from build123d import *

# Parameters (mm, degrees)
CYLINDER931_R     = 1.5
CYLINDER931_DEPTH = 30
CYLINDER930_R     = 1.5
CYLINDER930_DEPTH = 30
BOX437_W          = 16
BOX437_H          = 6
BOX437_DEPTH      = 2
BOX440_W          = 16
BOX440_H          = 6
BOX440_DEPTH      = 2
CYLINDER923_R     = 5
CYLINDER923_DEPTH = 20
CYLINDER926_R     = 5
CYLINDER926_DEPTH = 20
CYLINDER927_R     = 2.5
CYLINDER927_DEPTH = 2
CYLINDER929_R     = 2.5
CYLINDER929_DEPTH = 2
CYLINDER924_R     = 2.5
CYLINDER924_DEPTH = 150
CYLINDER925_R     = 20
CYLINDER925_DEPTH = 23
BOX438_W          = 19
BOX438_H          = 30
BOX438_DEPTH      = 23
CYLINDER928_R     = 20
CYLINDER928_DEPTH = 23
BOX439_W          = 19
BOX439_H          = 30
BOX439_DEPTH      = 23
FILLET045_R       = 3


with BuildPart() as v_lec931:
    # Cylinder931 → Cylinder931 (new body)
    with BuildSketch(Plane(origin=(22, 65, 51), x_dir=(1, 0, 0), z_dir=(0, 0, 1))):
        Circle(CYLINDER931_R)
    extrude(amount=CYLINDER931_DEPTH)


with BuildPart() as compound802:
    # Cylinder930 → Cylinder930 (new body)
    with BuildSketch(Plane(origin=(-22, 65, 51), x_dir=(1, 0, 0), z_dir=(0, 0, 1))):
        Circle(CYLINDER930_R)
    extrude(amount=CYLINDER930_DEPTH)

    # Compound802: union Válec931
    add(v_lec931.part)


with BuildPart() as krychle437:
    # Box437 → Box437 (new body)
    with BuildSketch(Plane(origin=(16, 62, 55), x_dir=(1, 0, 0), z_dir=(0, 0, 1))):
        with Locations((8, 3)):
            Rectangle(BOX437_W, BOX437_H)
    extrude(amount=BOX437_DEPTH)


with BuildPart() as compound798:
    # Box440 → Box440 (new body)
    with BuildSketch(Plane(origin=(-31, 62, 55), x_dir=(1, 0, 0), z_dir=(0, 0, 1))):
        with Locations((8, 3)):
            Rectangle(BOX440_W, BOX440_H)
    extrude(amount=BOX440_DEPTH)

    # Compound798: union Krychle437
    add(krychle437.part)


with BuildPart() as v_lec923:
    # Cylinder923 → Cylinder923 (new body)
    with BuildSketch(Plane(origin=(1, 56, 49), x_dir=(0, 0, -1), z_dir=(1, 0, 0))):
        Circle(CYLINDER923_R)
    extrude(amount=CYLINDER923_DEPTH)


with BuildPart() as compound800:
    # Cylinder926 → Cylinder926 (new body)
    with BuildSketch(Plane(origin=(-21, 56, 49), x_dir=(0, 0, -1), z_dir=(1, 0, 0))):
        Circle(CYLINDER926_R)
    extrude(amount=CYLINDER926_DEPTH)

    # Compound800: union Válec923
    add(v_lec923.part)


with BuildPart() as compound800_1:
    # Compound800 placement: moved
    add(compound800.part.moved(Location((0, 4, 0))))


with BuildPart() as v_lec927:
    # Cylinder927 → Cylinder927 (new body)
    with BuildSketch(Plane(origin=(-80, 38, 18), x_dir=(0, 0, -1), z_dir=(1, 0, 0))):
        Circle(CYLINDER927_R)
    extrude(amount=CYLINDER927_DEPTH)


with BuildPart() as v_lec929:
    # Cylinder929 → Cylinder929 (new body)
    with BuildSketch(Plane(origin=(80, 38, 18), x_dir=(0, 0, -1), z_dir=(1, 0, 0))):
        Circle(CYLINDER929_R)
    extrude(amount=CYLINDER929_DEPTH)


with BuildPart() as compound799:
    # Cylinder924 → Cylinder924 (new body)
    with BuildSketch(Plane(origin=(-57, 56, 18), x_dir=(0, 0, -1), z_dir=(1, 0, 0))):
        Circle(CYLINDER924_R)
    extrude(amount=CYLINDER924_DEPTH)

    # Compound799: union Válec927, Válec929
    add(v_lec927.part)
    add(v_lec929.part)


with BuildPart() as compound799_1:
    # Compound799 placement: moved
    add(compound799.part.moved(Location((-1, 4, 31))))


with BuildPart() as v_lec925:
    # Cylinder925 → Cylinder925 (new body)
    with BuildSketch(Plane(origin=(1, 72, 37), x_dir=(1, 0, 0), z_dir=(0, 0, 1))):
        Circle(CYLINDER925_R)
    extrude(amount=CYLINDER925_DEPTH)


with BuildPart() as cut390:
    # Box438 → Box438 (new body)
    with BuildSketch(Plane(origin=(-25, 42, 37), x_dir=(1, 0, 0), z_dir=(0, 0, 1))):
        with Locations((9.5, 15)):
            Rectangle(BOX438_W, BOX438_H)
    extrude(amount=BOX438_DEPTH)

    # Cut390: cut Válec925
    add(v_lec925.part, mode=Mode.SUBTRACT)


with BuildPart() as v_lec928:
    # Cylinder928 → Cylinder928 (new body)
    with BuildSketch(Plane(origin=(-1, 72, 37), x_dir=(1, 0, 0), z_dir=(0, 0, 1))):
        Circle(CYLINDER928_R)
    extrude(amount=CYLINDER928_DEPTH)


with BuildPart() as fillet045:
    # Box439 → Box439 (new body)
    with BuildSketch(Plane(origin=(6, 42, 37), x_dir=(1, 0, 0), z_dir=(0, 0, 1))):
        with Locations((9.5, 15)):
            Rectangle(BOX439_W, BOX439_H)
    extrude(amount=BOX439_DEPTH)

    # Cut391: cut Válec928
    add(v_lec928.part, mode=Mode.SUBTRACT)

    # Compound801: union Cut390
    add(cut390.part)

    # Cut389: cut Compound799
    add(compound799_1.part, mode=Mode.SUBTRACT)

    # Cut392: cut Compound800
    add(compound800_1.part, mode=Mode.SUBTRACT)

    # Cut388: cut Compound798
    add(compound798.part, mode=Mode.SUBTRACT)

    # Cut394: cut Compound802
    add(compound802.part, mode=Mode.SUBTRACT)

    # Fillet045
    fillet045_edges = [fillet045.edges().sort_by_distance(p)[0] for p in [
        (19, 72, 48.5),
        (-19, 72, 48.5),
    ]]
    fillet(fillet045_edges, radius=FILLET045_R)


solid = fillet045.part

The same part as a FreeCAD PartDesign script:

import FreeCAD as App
import Part
import Sketcher

V = App.Vector


def edges_at(feature, points):
    """Names of the edges that pass closest to the given points."""
    edges = feature.Shape.Edges
    near = lambda p: min(range(len(edges)), key=lambda i: edges[i].distToShape(Part.Vertex(*p))[0])
    return sorted({f"Edge{near(p) + 1}" for p in points})

doc = App.newDocument("Part")
body = doc.addObject("PartDesign::Body", "Body")

# Sketch on XY plane
sketch1 = body.newObject("Sketcher::SketchObject", "Sketch")
sketch1.AttachmentSupport = (doc.getObject("XY_Plane"), [""])
sketch1.MapMode = "FlatFace"
sketch1.AttachmentOffset = App.Placement(V(0, 0, 51), App.Rotation())
sketch1.addGeometry(Part.Circle(V(22, 65, 0), V(0, 0, 1), 1.5), False)
sketch1.addConstraint([
    Sketcher.Constraint("Diameter", 0, 3.0),
    Sketcher.Constraint("DistanceX", -1, 1, 0, 3, 22.0),
    Sketcher.Constraint("DistanceY", -1, 1, 0, 3, 65.0),
])
pad1 = body.newObject("PartDesign::Pad", "Pad")
pad1.Profile = sketch1
pad1.Length = 30
body2 = doc.addObject("PartDesign::Body", "Body001")
body2.AllowCompound = True

# Sketch on XY plane
sketch2 = body2.newObject("Sketcher::SketchObject", "Sketch001")
sketch2.AttachmentSupport = (doc.getObject("XY_Plane001"), [""])
sketch2.MapMode = "FlatFace"
sketch2.AttachmentOffset = App.Placement(V(0, 0, 51), App.Rotation())
sketch2.addGeometry(Part.Circle(V(-22, 65, 0), V(0, 0, 1), 1.5), False)
sketch2.addConstraint([
    Sketcher.Constraint("Diameter", 0, 3.0),
    Sketcher.Constraint("DistanceX", 0, 3, -1, 1, 22.0),
    Sketcher.Constraint("DistanceY", -1, 1, 0, 3, 65.0),
])
pad2 = body2.newObject("PartDesign::Pad", "Pad001")
pad2.Profile = sketch2
pad2.Length = 30
doc.recompute()

boolean = body2.newObject("PartDesign::Boolean", "Boolean")
boolean.Type = "Fuse"
boolean.addObjects([body])
body3 = doc.addObject("PartDesign::Body", "Body002")

# Sketch on XY plane
sketch3 = body3.newObject("Sketcher::SketchObject", "Sketch002")
sketch3.AttachmentSupport = (doc.getObject("XY_Plane002"), [""])
sketch3.MapMode = "FlatFace"
sketch3.AttachmentOffset = App.Placement(V(0, 0, 55), App.Rotation())
sketch3.addGeometry([
    Part.LineSegment(V(16, 68, 0), V(16, 62, 0)),
    Part.LineSegment(V(16, 62, 0), V(32, 62, 0)),
    Part.LineSegment(V(32, 62, 0), V(32, 68, 0)),
    Part.LineSegment(V(32, 68, 0), V(16, 68, 0)),
], False)
sketch3.addConstraint([
    Sketcher.Constraint("Coincident", 0, 2, 1, 1),
    Sketcher.Constraint("Coincident", 1, 2, 2, 1),
    Sketcher.Constraint("Coincident", 2, 2, 3, 1),
    Sketcher.Constraint("Coincident", 3, 2, 0, 1),
    Sketcher.Constraint("Vertical", 0),
    Sketcher.Constraint("Horizontal", 1),
    Sketcher.Constraint("Vertical", 2),
    Sketcher.Constraint("Horizontal", 3),
    Sketcher.Constraint("DistanceX", 1, 1, 1, 2, 16.0),
    Sketcher.Constraint("DistanceY", 0, 2, 0, 1, 6.0),
    Sketcher.Constraint("DistanceX", -1, 1, 0, 2, 16.0),
    Sketcher.Constraint("DistanceY", -1, 1, 0, 2, 62.0),
])
pad3 = body3.newObject("PartDesign::Pad", "Pad002")
pad3.Profile = sketch3
pad3.Length = 2
body4 = doc.addObject("PartDesign::Body", "Body003")
body4.AllowCompound = True

# Sketch on XY plane
sketch4 = body4.newObject("Sketcher::SketchObject", "Sketch003")
sketch4.AttachmentSupport = (doc.getObject("XY_Plane003"), [""])
sketch4.MapMode = "FlatFace"
sketch4.AttachmentOffset = App.Placement(V(0, 0, 55), App.Rotation())
sketch4.addGeometry([
    Part.LineSegment(V(-31, 68, 0), V(-31, 62, 0)),
    Part.LineSegment(V(-31, 62, 0), V(-15, 62, 0)),
    Part.LineSegment(V(-15, 62, 0), V(-15, 68, 0)),
    Part.LineSegment(V(-15, 68, 0), V(-31, 68, 0)),
], False)
sketch4.addConstraint([
    Sketcher.Constraint("Coincident", 0, 2, 1, 1),
    Sketcher.Constraint("Coincident", 1, 2, 2, 1),
    Sketcher.Constraint("Coincident", 2, 2, 3, 1),
    Sketcher.Constraint("Coincident", 3, 2, 0, 1),
    Sketcher.Constraint("Vertical", 0),
    Sketcher.Constraint("Horizontal", 1),
    Sketcher.Constraint("Vertical", 2),
    Sketcher.Constraint("Horizontal", 3),
    Sketcher.Constraint("DistanceX", 1, 1, 1, 2, 16.0),
    Sketcher.Constraint("DistanceY", 0, 2, 0, 1, 6.0),
    Sketcher.Constraint("DistanceX", 0, 2, -1, 1, 31.0),
    Sketcher.Constraint("DistanceY", -1, 1, 0, 2, 62.0),
])
pad4 = body4.newObject("PartDesign::Pad", "Pad003")
pad4.Profile = sketch4
pad4.Length = 2
doc.recompute()

boolean2 = body4.newObject("PartDesign::Boolean", "Boolean001")
boolean2.Type = "Fuse"
boolean2.addObjects([body3])
body5 = doc.addObject("PartDesign::Body", "Body004")

# Sketch on YZ plane
sketch5 = body5.newObject("Sketcher::SketchObject", "Sketch004")
sketch5.AttachmentSupport = (doc.getObject("YZ_Plane004"), [""])
sketch5.MapMode = "FlatFace"
sketch5.AttachmentOffset = App.Placement(V(0, 0, 1), App.Rotation())
sketch5.addGeometry(Part.Circle(V(56, 49, 0), V(0, 0, 1), 5), False)
sketch5.addConstraint([
    Sketcher.Constraint("Diameter", 0, 10.0),
    Sketcher.Constraint("DistanceX", -1, 1, 0, 3, 56.0),
    Sketcher.Constraint("DistanceY", -1, 1, 0, 3, 49.0),
])
pad5 = body5.newObject("PartDesign::Pad", "Pad004")
pad5.Profile = sketch5
pad5.Length = 20
body6 = doc.addObject("PartDesign::Body", "Body005")
body6.AllowCompound = True

# Sketch on YZ plane
sketch6 = body6.newObject("Sketcher::SketchObject", "Sketch005")
sketch6.AttachmentSupport = (doc.getObject("YZ_Plane005"), [""])
sketch6.MapMode = "FlatFace"
sketch6.AttachmentOffset = App.Placement(V(0, 0, -21), App.Rotation())
sketch6.addGeometry(Part.Circle(V(56, 49, 0), V(0, 0, 1), 5), False)
sketch6.addConstraint([
    Sketcher.Constraint("Diameter", 0, 10.0),
    Sketcher.Constraint("DistanceX", -1, 1, 0, 3, 56.0),
    Sketcher.Constraint("DistanceY", -1, 1, 0, 3, 49.0),
])
pad6 = body6.newObject("PartDesign::Pad", "Pad005")
pad6.Profile = sketch6
pad6.Length = 20
doc.recompute()

boolean3 = body6.newObject("PartDesign::Boolean", "Boolean002")
boolean3.Type = "Fuse"
boolean3.addObjects([body5])
body7 = doc.addObject("PartDesign::Body", "Body006")
body7.AllowCompound = True
doc.recompute()

body6.Placement = App.Placement(V(0, 4, 0), App.Rotation(V(0, 0, 1), 0))
boolean4 = body7.newObject("PartDesign::Boolean", "Boolean003")
boolean4.Type = "Fuse"
boolean4.addObjects([body6])
body8 = doc.addObject("PartDesign::Body", "Body007")

# Sketch on YZ plane
sketch7 = body8.newObject("Sketcher::SketchObject", "Sketch006")
sketch7.AttachmentSupport = (doc.getObject("YZ_Plane007"), [""])
sketch7.MapMode = "FlatFace"
sketch7.AttachmentOffset = App.Placement(V(0, 0, -80), App.Rotation())
sketch7.addGeometry(Part.Circle(V(38, 18, 0), V(0, 0, 1), 2.5), False)
sketch7.addConstraint([
    Sketcher.Constraint("Diameter", 0, 5.0),
    Sketcher.Constraint("DistanceX", -1, 1, 0, 3, 38.0),
    Sketcher.Constraint("DistanceY", -1, 1, 0, 3, 18.0),
])
pad7 = body8.newObject("PartDesign::Pad", "Pad006")
pad7.Profile = sketch7
pad7.Length = 2
body9 = doc.addObject("PartDesign::Body", "Body008")

# Sketch on YZ plane
sketch8 = body9.newObject("Sketcher::SketchObject", "Sketch007")
sketch8.AttachmentSupport = (doc.getObject("YZ_Plane008"), [""])
sketch8.MapMode = "FlatFace"
sketch8.AttachmentOffset = App.Placement(V(0, 0, 80), App.Rotation())
sketch8.addGeometry(Part.Circle(V(38, 18, 0), V(0, 0, 1), 2.5), False)
sketch8.addConstraint([
    Sketcher.Constraint("Diameter", 0, 5.0),
    Sketcher.Constraint("DistanceX", -1, 1, 0, 3, 38.0),
    Sketcher.Constraint("DistanceY", -1, 1, 0, 3, 18.0),
])
pad8 = body9.newObject("PartDesign::Pad", "Pad007")
pad8.Profile = sketch8
pad8.Length = 2
body10 = doc.addObject("PartDesign::Body", "Body009")
body10.AllowCompound = True

# Sketch on YZ plane
sketch9 = body10.newObject("Sketcher::SketchObject", "Sketch008")
sketch9.AttachmentSupport = (doc.getObject("YZ_Plane009"), [""])
sketch9.MapMode = "FlatFace"
sketch9.AttachmentOffset = App.Placement(V(0, 0, -57), App.Rotation())
sketch9.addGeometry(Part.Circle(V(56, 18, 0), V(0, 0, 1), 2.5), False)
sketch9.addConstraint([
    Sketcher.Constraint("Diameter", 0, 5.0),
    Sketcher.Constraint("DistanceX", -1, 1, 0, 3, 56.0),
    Sketcher.Constraint("DistanceY", -1, 1, 0, 3, 18.0),
])
pad9 = body10.newObject("PartDesign::Pad", "Pad008")
pad9.Profile = sketch9
pad9.Length = 150
doc.recompute()

boolean5 = body10.newObject("PartDesign::Boolean", "Boolean004")
boolean5.Type = "Fuse"
boolean5.addObjects([body8])
doc.recompute()

boolean6 = body10.newObject("PartDesign::Boolean", "Boolean005")
boolean6.Type = "Fuse"
boolean6.addObjects([body9])
body11 = doc.addObject("PartDesign::Body", "Body010")
body11.AllowCompound = True
doc.recompute()

body10.Placement = App.Placement(V(-1, 4, 31), App.Rotation(V(0, 0, 1), 0))
boolean7 = body11.newObject("PartDesign::Boolean", "Boolean006")
boolean7.Type = "Fuse"
boolean7.addObjects([body10])
body12 = doc.addObject("PartDesign::Body", "Body011")

# Sketch on XY plane
sketch10 = body12.newObject("Sketcher::SketchObject", "Sketch009")
sketch10.AttachmentSupport = (doc.getObject("XY_Plane011"), [""])
sketch10.MapMode = "FlatFace"
sketch10.AttachmentOffset = App.Placement(V(0, 0, 37), App.Rotation())
sketch10.addGeometry(Part.Circle(V(1, 72, 0), V(0, 0, 1), 20), False)
sketch10.addConstraint([
    Sketcher.Constraint("Diameter", 0, 40.0),
    Sketcher.Constraint("DistanceX", -1, 1, 0, 3, 1.0),
    Sketcher.Constraint("DistanceY", -1, 1, 0, 3, 72.0),
])
pad10 = body12.newObject("PartDesign::Pad", "Pad009")
pad10.Profile = sketch10
pad10.Length = 23
body13 = doc.addObject("PartDesign::Body", "Body012")

# Sketch on XY plane
sketch11 = body13.newObject("Sketcher::SketchObject", "Sketch010")
sketch11.AttachmentSupport = (doc.getObject("XY_Plane012"), [""])
sketch11.MapMode = "FlatFace"
sketch11.AttachmentOffset = App.Placement(V(0, 0, 37), App.Rotation())
sketch11.addGeometry([
    Part.LineSegment(V(-25, 72, 0), V(-25, 42, 0)),
    Part.LineSegment(V(-25, 42, 0), V(-6, 42, 0)),
    Part.LineSegment(V(-6, 42, 0), V(-6, 72, 0)),
    Part.LineSegment(V(-6, 72, 0), V(-25, 72, 0)),
], False)
sketch11.addConstraint([
    Sketcher.Constraint("Coincident", 0, 2, 1, 1),
    Sketcher.Constraint("Coincident", 1, 2, 2, 1),
    Sketcher.Constraint("Coincident", 2, 2, 3, 1),
    Sketcher.Constraint("Coincident", 3, 2, 0, 1),
    Sketcher.Constraint("Vertical", 0),
    Sketcher.Constraint("Horizontal", 1),
    Sketcher.Constraint("Vertical", 2),
    Sketcher.Constraint("Horizontal", 3),
    Sketcher.Constraint("DistanceX", 1, 1, 1, 2, 19.0),
    Sketcher.Constraint("DistanceY", 0, 2, 0, 1, 30.0),
    Sketcher.Constraint("DistanceX", 0, 2, -1, 1, 25.0),
    Sketcher.Constraint("DistanceY", -1, 1, 0, 2, 42.0),
])
pad11 = body13.newObject("PartDesign::Pad", "Pad010")
pad11.Profile = sketch11
pad11.Length = 23
doc.recompute()

boolean8 = body13.newObject("PartDesign::Boolean", "Boolean007")
boolean8.Type = "Cut"
boolean8.addObjects([body12])
body14 = doc.addObject("PartDesign::Body", "Body013")

# Sketch on XY plane
sketch12 = body14.newObject("Sketcher::SketchObject", "Sketch011")
sketch12.AttachmentSupport = (doc.getObject("XY_Plane013"), [""])
sketch12.MapMode = "FlatFace"
sketch12.AttachmentOffset = App.Placement(V(0, 0, 37), App.Rotation())
sketch12.addGeometry(Part.Circle(V(-1, 72, 0), V(0, 0, 1), 20), False)
sketch12.addConstraint([
    Sketcher.Constraint("Diameter", 0, 40.0),
    Sketcher.Constraint("DistanceX", 0, 3, -1, 1, 1.0),
    Sketcher.Constraint("DistanceY", -1, 1, 0, 3, 72.0),
])
pad12 = body14.newObject("PartDesign::Pad", "Pad011")
pad12.Profile = sketch12
pad12.Length = 23
body15 = doc.addObject("PartDesign::Body", "Body014")
body15.AllowCompound = True

# Sketch on XY plane
sketch13 = body15.newObject("Sketcher::SketchObject", "Sketch012")
sketch13.AttachmentSupport = (doc.getObject("XY_Plane014"), [""])
sketch13.MapMode = "FlatFace"
sketch13.AttachmentOffset = App.Placement(V(0, 0, 37), App.Rotation())
sketch13.addGeometry([
    Part.LineSegment(V(6, 72, 0), V(6, 42, 0)),
    Part.LineSegment(V(6, 42, 0), V(25, 42, 0)),
    Part.LineSegment(V(25, 42, 0), V(25, 72, 0)),
    Part.LineSegment(V(25, 72, 0), V(6, 72, 0)),
], False)
sketch13.addConstraint([
    Sketcher.Constraint("Coincident", 0, 2, 1, 1),
    Sketcher.Constraint("Coincident", 1, 2, 2, 1),
    Sketcher.Constraint("Coincident", 2, 2, 3, 1),
    Sketcher.Constraint("Coincident", 3, 2, 0, 1),
    Sketcher.Constraint("Vertical", 0),
    Sketcher.Constraint("Horizontal", 1),
    Sketcher.Constraint("Vertical", 2),
    Sketcher.Constraint("Horizontal", 3),
    Sketcher.Constraint("DistanceX", 1, 1, 1, 2, 19.0),
    Sketcher.Constraint("DistanceY", 0, 2, 0, 1, 30.0),
    Sketcher.Constraint("DistanceX", -1, 1, 0, 2, 6.0),
    Sketcher.Constraint("DistanceY", -1, 1, 0, 2, 42.0),
])
pad13 = body15.newObject("PartDesign::Pad", "Pad012")
pad13.Profile = sketch13
pad13.Length = 23
doc.recompute()

boolean9 = body15.newObject("PartDesign::Boolean", "Boolean008")
boolean9.Type = "Cut"
boolean9.addObjects([body14])
doc.recompute()

boolean10 = body15.newObject("PartDesign::Boolean", "Boolean009")
boolean10.Type = "Fuse"
boolean10.addObjects([body13])
doc.recompute()

boolean11 = body15.newObject("PartDesign::Boolean", "Boolean010")
boolean11.Type = "Cut"
boolean11.addObjects([body11])
doc.recompute()

boolean12 = body15.newObject("PartDesign::Boolean", "Boolean011")
boolean12.Type = "Cut"
boolean12.addObjects([body7])
doc.recompute()

boolean13 = body15.newObject("PartDesign::Boolean", "Boolean012")
boolean13.Type = "Cut"
boolean13.addObjects([body4])
doc.recompute()

boolean14 = body15.newObject("PartDesign::Boolean", "Boolean013")
boolean14.Type = "Cut"
boolean14.addObjects([body2])
doc.recompute()

fillet = body15.newObject("PartDesign::Fillet", "Fillet")
fillet.Base = (boolean14, edges_at(boolean14, [(19, 72, 48.5), (-19, 72, 48.5)]))
fillet.Radius = 3

doc.recompute()
